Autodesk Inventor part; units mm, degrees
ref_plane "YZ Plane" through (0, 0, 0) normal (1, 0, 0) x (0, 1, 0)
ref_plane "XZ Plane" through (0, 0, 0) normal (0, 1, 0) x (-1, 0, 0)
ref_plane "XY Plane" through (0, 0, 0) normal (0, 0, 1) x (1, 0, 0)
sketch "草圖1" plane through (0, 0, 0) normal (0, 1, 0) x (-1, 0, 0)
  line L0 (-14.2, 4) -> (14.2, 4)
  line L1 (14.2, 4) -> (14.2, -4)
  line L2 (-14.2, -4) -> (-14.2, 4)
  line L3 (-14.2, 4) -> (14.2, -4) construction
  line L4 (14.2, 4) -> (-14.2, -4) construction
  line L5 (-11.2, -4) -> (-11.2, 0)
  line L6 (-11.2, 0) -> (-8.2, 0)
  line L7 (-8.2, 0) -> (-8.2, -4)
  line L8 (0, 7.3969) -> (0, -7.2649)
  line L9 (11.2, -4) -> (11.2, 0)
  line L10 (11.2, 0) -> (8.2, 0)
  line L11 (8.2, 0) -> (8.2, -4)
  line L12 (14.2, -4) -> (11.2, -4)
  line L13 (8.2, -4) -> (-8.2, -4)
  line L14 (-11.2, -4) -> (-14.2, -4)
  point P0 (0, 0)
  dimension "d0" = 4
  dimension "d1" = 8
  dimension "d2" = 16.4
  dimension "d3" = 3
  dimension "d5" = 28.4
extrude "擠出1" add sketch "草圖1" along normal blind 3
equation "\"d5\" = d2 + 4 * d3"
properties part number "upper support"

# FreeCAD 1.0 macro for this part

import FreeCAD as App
import Part
import Sketcher
from FreeCAD import Vector
Q = App.Units.Quantity


def add_polygon(sketch, points):
    """Adds a closed chain of lines whose ends are joined by coincident constraints."""
    first, n = sketch.GeometryCount, len(points)
    for a, b in zip(points, points[1:] + points[:1]):
        sketch.addGeometry(Part.LineSegment(App.Vector(*a, 0), App.Vector(*b, 0)), False)
    for i in range(n):
        sketch.addConstraint(Sketcher.Constraint("Coincident", first + i, 2, first + (i + 1) % n, 1))

doc = App.newDocument("Part")
params = doc.addObject("Spreadsheet::Sheet", "Params")
for row, (alias, value) in enumerate([
    ("sketch1_width", "3 mm"),
    ("sketch1_height", "8 mm"),
    ("sketch1_width2", "16.4 mm"),
    ("pad1_length", "3 mm"),
], start=1):
    params.set(f"A{row}", alias)
    params.set(f"B{row}", "=" + value)
    params.setAlias(f"B{row}", alias)

body = doc.addObject("PartDesign::Body", "Body")

# Sketch on XZ plane
sketch1 = body.newObject("Sketcher::SketchObject", "Sketch")
sketch1.AttachmentSupport = (doc.getObject("XZ_Plane"), [""])
sketch1.MapMode = "FlatFace"
add_polygon(sketch1, [(14.2, 4), (14.2, -4), (11.2, -4), (11.2, 0), (8.2, 0), (8.2, -4), (-8.2, -4), (-8.2, 0), (-11.2, 0), (-11.2, -4), (-14.2, -4), (-14.2, 4)])  # lines 0-11
sketch1.addConstraint([
    Sketcher.Constraint("Vertical", 0),
    Sketcher.Constraint("Horizontal", 1),
    Sketcher.Constraint("Vertical", 2),
    Sketcher.Constraint("Horizontal", 3),
    Sketcher.Constraint("Vertical", 4),
    Sketcher.Constraint("Horizontal", 5),
    Sketcher.Constraint("Vertical", 6),
    Sketcher.Constraint("Horizontal", 7),
    Sketcher.Constraint("Vertical", 8),
    Sketcher.Constraint("Horizontal", 9),
    Sketcher.Constraint("Vertical", 10),
    Sketcher.Constraint("Horizontal", 11),
    Sketcher.Constraint("Symmetric", 3, 2, 6, 2, -1, 1),
    Sketcher.Constraint("Symmetric", 0, 2, 10, 2, -1, 1),
    Sketcher.Constraint("Symmetric", 2, 2, 7, 2, -2),
    Sketcher.Constraint("Horizontal", 1, 2, 4, 2),
    Sketcher.Constraint("Horizontal", 5, 2, 8, 2),
    Sketcher.Constraint("Equal", 1, 3),
    Sketcher.Constraint("DistanceX", 1, 2, 1, 1, Q("3 mm")),
    Sketcher.Constraint("DistanceY", 0, 2, 0, 1, Q("8 mm")),
    Sketcher.Constraint("DistanceX", 5, 2, 5, 1, Q("16.4 mm")),
])
sketch1.setExpression("Constraints[30]", "Params.sketch1_width")
sketch1.setExpression("Constraints[31]", "Params.sketch1_height")
sketch1.setExpression("Constraints[32]", "Params.sketch1_width2")
pad1 = body.newObject("PartDesign::Pad", "Pad")
pad1.Profile = sketch1
pad1.setExpression("Length", "Params.pad1_length")
pad1.Reversed = True

doc.recompute()
